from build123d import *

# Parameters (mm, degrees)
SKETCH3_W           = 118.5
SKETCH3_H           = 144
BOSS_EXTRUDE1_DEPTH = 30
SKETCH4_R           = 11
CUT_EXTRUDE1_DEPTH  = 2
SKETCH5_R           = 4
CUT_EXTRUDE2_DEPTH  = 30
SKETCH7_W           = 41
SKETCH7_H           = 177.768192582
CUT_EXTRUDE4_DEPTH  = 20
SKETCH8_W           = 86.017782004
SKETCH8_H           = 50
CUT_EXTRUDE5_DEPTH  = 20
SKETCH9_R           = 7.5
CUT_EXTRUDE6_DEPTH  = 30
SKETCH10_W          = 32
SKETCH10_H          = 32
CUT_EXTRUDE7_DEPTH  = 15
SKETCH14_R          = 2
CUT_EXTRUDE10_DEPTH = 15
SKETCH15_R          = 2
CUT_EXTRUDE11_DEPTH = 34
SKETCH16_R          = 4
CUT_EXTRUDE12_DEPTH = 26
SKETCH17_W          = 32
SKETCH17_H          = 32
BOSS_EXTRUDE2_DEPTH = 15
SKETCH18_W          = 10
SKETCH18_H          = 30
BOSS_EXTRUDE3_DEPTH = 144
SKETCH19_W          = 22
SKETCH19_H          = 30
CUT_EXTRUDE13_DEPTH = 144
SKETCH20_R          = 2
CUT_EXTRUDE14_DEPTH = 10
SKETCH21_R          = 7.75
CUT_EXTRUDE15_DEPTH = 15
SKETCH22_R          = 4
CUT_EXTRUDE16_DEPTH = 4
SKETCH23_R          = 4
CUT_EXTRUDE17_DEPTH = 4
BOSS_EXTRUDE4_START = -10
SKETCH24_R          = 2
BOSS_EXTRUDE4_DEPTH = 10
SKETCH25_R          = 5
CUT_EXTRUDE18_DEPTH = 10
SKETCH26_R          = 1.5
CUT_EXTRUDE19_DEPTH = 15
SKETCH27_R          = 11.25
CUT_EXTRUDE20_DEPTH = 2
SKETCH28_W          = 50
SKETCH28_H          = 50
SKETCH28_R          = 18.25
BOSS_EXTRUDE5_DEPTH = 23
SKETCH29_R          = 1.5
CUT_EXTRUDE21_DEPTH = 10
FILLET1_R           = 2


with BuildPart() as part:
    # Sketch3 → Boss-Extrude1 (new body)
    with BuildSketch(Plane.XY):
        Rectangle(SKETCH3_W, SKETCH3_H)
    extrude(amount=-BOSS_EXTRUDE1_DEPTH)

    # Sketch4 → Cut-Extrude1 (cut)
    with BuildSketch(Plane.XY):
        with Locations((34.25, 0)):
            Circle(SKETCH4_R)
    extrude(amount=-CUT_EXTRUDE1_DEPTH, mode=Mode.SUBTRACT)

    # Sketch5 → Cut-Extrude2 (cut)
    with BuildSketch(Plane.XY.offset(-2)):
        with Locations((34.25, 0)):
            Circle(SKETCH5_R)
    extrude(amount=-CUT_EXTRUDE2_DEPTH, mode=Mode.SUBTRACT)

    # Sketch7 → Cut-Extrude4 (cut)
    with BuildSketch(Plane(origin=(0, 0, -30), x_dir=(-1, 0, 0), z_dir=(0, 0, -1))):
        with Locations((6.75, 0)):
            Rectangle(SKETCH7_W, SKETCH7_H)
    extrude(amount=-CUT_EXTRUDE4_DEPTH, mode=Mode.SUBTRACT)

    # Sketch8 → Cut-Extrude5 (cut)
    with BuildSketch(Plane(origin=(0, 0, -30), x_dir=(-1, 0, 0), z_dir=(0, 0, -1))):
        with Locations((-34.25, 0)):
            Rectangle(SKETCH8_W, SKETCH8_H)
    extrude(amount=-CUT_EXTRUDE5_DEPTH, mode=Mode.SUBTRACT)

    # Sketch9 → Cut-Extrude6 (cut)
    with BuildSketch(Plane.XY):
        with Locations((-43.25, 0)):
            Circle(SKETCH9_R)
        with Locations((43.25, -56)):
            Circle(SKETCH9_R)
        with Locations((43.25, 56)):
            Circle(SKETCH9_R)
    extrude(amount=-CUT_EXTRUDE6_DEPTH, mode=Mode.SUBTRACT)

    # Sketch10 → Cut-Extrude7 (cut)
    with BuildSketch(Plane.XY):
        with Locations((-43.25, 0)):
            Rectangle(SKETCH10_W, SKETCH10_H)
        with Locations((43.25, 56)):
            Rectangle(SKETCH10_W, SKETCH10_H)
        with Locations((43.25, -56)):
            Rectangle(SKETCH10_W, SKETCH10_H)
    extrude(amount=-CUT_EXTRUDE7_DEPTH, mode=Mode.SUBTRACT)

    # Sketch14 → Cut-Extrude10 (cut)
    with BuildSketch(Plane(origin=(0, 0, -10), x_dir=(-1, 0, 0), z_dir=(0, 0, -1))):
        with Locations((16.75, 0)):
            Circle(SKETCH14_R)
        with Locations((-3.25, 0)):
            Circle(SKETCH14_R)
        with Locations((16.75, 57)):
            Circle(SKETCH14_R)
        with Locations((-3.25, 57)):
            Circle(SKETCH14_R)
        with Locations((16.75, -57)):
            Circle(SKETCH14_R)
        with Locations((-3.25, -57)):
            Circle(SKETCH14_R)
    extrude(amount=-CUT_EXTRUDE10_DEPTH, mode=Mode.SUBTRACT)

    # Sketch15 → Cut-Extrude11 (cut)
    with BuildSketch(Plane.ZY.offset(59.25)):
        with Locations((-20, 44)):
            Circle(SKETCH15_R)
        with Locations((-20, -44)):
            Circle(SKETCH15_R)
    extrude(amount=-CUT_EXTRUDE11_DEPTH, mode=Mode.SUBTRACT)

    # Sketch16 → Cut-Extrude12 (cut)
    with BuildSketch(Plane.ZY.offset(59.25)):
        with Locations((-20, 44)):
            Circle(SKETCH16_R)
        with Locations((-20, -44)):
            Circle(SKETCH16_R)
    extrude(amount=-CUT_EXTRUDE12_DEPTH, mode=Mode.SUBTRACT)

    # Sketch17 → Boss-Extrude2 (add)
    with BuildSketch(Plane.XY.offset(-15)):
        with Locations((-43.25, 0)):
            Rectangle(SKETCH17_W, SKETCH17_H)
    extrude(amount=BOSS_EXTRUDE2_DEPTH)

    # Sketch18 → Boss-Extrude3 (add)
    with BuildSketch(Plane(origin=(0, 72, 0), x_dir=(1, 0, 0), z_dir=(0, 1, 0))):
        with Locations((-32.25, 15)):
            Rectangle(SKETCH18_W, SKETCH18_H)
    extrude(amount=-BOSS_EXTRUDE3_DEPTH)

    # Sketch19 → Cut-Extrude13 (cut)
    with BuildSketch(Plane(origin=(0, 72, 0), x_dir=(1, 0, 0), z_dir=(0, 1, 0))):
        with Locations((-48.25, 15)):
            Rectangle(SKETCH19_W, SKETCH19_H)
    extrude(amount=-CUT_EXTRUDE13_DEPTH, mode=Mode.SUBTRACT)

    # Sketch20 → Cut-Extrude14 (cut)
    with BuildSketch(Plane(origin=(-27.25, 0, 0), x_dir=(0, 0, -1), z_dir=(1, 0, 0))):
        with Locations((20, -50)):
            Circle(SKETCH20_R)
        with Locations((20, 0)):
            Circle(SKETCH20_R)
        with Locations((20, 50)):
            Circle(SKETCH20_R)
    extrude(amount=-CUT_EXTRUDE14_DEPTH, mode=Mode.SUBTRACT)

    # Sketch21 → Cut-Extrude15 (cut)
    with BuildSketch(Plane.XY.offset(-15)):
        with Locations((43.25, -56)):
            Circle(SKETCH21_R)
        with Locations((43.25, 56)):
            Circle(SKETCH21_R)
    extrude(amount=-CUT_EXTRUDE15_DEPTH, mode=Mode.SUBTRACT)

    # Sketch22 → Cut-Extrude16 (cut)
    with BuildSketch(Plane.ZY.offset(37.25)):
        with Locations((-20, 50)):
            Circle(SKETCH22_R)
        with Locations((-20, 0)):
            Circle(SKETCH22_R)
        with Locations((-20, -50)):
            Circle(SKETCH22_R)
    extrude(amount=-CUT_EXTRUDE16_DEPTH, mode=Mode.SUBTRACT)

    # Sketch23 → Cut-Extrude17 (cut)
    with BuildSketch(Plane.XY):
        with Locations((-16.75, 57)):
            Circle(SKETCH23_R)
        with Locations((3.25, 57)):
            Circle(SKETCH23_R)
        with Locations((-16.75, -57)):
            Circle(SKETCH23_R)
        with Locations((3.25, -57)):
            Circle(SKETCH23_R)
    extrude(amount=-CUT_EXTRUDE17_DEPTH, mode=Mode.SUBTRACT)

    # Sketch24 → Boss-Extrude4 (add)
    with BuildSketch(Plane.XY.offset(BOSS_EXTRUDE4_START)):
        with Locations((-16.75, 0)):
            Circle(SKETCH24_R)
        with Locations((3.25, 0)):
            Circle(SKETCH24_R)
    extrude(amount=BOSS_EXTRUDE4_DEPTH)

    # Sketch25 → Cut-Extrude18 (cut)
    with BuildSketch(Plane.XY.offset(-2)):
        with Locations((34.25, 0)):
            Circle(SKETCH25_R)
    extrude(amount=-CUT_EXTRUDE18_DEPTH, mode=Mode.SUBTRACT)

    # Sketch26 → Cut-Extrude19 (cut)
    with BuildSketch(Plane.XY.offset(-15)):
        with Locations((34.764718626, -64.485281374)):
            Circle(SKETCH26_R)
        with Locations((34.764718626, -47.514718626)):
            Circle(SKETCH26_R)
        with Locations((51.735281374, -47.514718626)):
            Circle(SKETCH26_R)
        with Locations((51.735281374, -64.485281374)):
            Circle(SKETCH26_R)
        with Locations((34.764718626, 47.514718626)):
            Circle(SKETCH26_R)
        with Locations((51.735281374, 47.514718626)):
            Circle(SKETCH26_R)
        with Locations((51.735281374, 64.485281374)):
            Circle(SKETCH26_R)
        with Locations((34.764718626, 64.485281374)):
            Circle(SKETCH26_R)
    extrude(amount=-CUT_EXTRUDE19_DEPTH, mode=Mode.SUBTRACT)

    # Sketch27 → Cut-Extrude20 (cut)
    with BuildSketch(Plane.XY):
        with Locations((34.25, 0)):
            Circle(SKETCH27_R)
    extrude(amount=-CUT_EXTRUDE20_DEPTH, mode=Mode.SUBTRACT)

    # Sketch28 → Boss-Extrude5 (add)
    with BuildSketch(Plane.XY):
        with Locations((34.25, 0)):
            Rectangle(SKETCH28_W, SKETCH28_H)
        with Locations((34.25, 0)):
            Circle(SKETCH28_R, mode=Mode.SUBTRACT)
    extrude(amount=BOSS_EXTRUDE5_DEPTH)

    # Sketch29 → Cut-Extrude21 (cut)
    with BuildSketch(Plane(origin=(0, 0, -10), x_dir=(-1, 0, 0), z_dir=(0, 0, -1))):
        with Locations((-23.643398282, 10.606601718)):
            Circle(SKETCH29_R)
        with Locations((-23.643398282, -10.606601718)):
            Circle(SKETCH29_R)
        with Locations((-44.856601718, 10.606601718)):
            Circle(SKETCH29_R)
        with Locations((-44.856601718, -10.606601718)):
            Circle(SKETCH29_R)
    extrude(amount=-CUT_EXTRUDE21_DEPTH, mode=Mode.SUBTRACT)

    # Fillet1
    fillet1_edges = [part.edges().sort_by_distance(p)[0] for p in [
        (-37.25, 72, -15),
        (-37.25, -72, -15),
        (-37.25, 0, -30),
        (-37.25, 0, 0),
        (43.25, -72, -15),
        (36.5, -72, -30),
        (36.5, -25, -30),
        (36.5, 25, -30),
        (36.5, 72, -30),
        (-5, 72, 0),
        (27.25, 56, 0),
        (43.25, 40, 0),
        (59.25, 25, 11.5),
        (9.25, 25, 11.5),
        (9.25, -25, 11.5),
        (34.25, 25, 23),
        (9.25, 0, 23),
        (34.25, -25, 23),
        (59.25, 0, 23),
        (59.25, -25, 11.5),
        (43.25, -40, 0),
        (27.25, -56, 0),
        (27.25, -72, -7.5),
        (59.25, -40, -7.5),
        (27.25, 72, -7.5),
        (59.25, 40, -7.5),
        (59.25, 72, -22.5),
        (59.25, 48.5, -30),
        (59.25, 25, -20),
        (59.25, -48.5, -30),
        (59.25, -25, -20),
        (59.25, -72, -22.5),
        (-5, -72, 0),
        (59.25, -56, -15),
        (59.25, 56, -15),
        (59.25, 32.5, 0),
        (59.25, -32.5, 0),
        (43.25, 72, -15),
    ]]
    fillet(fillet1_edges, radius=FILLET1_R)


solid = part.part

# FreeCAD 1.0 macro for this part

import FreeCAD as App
import Part
import Sketcher


def edges_at(feature, points):
    """Names of the edges that pass closest to the given points."""
    edges = feature.Shape.Edges
    near = lambda p: min(range(len(edges)), key=lambda i: edges[i].distToShape(Part.Vertex(*p))[0])
    return sorted({f"Edge{near(p) + 1}" for p in points})


def add_polygon(sketch, points):
    """Adds a closed chain of lines whose ends are joined by coincident constraints."""
    first, n = sketch.GeometryCount, len(points)
    for a, b in zip(points, points[1:] + points[:1]):
        sketch.addGeometry(Part.LineSegment(App.Vector(*a, 0), App.Vector(*b, 0)), False)
    for i in range(n):
        sketch.addConstraint(Sketcher.Constraint("Coincident", first + i, 2, first + (i + 1) % n, 1))

doc = App.newDocument("Part")
params = doc.addObject("Spreadsheet::Sheet", "Params")
for row, (alias, value) in enumerate([
    ("sketch1_height", "144 mm"),
    ("sketch1_width", "118.5 mm"),
    ("pad1_length", "30 mm"),
    ("sketch2_diameter", "22 mm"),
    ("pocket1_length", "2 mm"),
    ("sketch3_diameter", "8 mm"),
    ("pocket2_length", "30 mm"),
    ("sketch4_width", "41 mm"),
    ("pocket3_length", "20 mm"),
    ("sketch5_height", "50 mm"),
    ("pocket4_length", "20 mm"),
    ("sketch6_diameter", "15 mm"),
    ("pocket5_length", "30 mm"),
    ("sketch7_width", "32 mm"),
    ("pocket6_length", "15 mm"),
    ("sketch8_diameter", "4 mm"),
    ("pocket7_length", "15 mm"),
    ("sketch9_diameter", "4 mm"),
    ("pocket8_length", "34 mm"),
    ("sketch10_diameter", "8 mm"),
    ("pocket9_length", "26 mm"),
    ("sketch11_width", "32 mm"),
    ("pad2_length", "15 mm"),
    ("sketch12_width", "10 mm"),
    ("sketch12_height", "30 mm"),
    ("pad3_length", "144 mm"),
    ("sketch13_width", "22 mm"),
    ("sketch13_height", "30 mm"),
    ("pocket10_length", "144 mm"),
    ("sketch14_diameter", "4 mm"),
    ("pocket11_length", "10 mm"),
    ("sketch15_diameter", "15.5 mm"),
    ("pocket12_length", "15 mm"),
    ("sketch16_diameter", "8 mm"),
    ("pocket13_length", "4 mm"),
    ("sketch17_diameter", "8 mm"),
    ("pocket14_length", "4 mm"),
    ("sketch18_diameter", "4 mm"),
    ("pad4_length", "10 mm"),
    ("sketch19_diameter", "10 mm"),
    ("pocket15_length", "10 mm"),
    ("sketch20_diameter", "3 mm"),
    ("pocket16_length", "15 mm"),
    ("sketch21_diameter", "22.5 mm"),
    ("pocket17_length", "2 mm"),
    ("sketch22_diameter", "36.5 mm"),
    ("sketch22_width", "50 mm"),
    ("pad5_length", "23 mm"),
    ("sketch23_diameter", "3 mm"),
    ("pocket18_length", "10 mm"),
    ("fillet_radius", "2 mm"),
], start=1):
    params.set(f"A{row}", alias)
    params.set(f"B{row}", "=" + value)
    params.setAlias(f"B{row}", alias)

body = doc.addObject("PartDesign::Body", "Body")

# Sketch on XY plane
sketch1 = doc.addObject("Sketcher::SketchObject", "Sketch")
body.addObject(sketch1)
sketch1.AttachmentSupport = (doc.XY_Plane, [""])
sketch1.MapMode = "FlatFace"
add_polygon(sketch1, [(-59, 72), (-59, -72), (59, -72), (59, 72)])  # lines 0-3
sketch1.addConstraint([
    Sketcher.Constraint("Vertical", 0),
    Sketcher.Constraint("Horizontal", 1),
    Sketcher.Constraint("Vertical", 2),
    Sketcher.Constraint("Horizontal", 3),
    Sketcher.Constraint("Symmetric", 0, 2, 2, 2, -1, 1),
    Sketcher.Constraint("DistanceY", 0, 2, 0, 1, 144.0),
    Sketcher.Constraint("DistanceX", 1, 1, 1, 2, 118.5),
])
sketch1.setExpression("Constraints[9]", "Params.sketch1_height")
sketch1.setExpression("Constraints[10]", "Params.sketch1_width")
pad1 = doc.addObject("PartDesign::Pad", "Pad")
body.addObject(pad1)
pad1.Profile = sketch1
pad1.setExpression("Length", "Params.pad1_length")
pad1.Reversed = True

# Sketch on XY plane
sketch2 = doc.addObject("Sketcher::SketchObject", "Sketch001")
body.addObject(sketch2)
sketch2.AttachmentSupport = (doc.XY_Plane, [""])
sketch2.MapMode = "FlatFace"
sketch2.addGeometry(Part.Circle(App.Vector(34, 0, 0), App.Vector(0, 0, 1), 11), False)
sketch2.addConstraint([
    Sketcher.Constraint("PointOnObject", 0, 3, -1),
    Sketcher.Constraint("Diameter", 0, 22.0),
    Sketcher.Constraint("DistanceX", -1, 1, 0, 3, 34.25),
])
sketch2.setExpression("Constraints[1]", "Params.sketch2_diameter")
pocket1 = doc.addObject("PartDesign::Pocket", "Pocket")
body.addObject(pocket1)
pocket1.Profile = sketch2
pocket1.setExpression("Length", "Params.pocket1_length")

# Sketch on XY plane
sketch3 = doc.addObject("Sketcher::SketchObject", "Sketch002")
body.addObject(sketch3)
sketch3.AttachmentSupport = (doc.XY_Plane, [""])
sketch3.MapMode = "FlatFace"
sketch3.AttachmentOffset = App.Placement(App.Vector(0, 0, -2), App.Rotation())
sketch3.addGeometry(Part.Circle(App.Vector(34.2, 0, 0), App.Vector(0, 0, 1), 4), False)
sketch3.addConstraint([
    Sketcher.Constraint("PointOnObject", 0, 3, -1),
    Sketcher.Constraint("Diameter", 0, 8.0),
    Sketcher.Constraint("DistanceX", -1, 1, 0, 3, 34.25),
])
sketch3.setExpression("Constraints[1]", "Params.sketch3_diameter")
pocket2 = doc.addObject("PartDesign::Pocket", "Pocket001")
body.addObject(pocket2)
pocket2.Profile = sketch3
pocket2.setExpression("Length", "Params.pocket2_length")

# Sketch on XY plane
sketch4 = doc.addObject("Sketcher::SketchObject", "Sketch003")
body.addObject(sketch4)
sketch4.AttachmentSupport = (doc.XY_Plane, [""])
sketch4.MapMode = "FlatFace"
sketch4.AttachmentOffset = App.Placement(App.Vector(0, 0, -30), App.Rotation())
add_polygon(sketch4, [(14, 89), (14, -89), (-27, -89), (-27, 89)])  # lines 0-3
sketch4.addConstraint([
    Sketcher.Constraint("Vertical", 0),
    Sketcher.Constraint("Horizontal", 1),
    Sketcher.Constraint("Vertical", 2),
    Sketcher.Constraint("Horizontal", 3),
    Sketcher.Constraint("DistanceX", 1, 2, 1, 1, 41.0),
    Sketcher.Constraint("DistanceX", -1, 1, 0, 2, 13.75),
    Sketcher.Constraint("DistanceY", 0, 2, 0, 1, 177.768193),
    Sketcher.Constraint("DistanceY", 0, 2, -1, 1, 88.884096),
])
sketch4.setExpression("Constraints[8]", "Params.sketch4_width")
pocket3 = doc.addObject("PartDesign::Pocket", "Pocket002")
body.addObject(pocket3)
pocket3.Profile = sketch4
pocket3.setExpression("Length", "Params.pocket3_length")
pocket3.Reversed = True

# Sketch on XY plane
sketch5 = doc.addObject("Sketcher::SketchObject", "Sketch004")
body.addObject(sketch5)
sketch5.AttachmentSupport = (doc.XY_Plane, [""])
sketch5.MapMode = "FlatFace"
sketch5.AttachmentOffset = App.Placement(App.Vector(0, 0, -30), App.Rotation())
add_polygon(sketch5, [(77, 25), (77, -25), (-9, -25), (-9, 25)])  # lines 0-3
sketch5.addConstraint([
    Sketcher.Constraint("Vertical", 0),
    Sketcher.Constraint("Horizontal", 1),
    Sketcher.Constraint("Vertical", 2),
    Sketcher.Constraint("Horizontal", 3),
    Sketcher.Constraint("DistanceY", 0, 2, 0, 1, 50.0),
    Sketcher.Constraint("DistanceY", 0, 2, -1, 1, 25.0),
    Sketcher.Constraint("DistanceX", 1, 2, 1, 1, 86.017782),
    Sketcher.Constraint("DistanceX", -1, 1, 0, 2, 77.258891),
])
sketch5.setExpression("Constraints[8]", "Params.sketch5_height")
pocket4 = doc.addObject("PartDesign::Pocket", "Pocket003")
body.addObject(pocket4)
pocket4.Profile = sketch5
pocket4.setExpression("Length", "Params.pocket4_length")
pocket4.Reversed = True

# Sketch on XY plane
sketch6 = doc.addObject("Sketcher::SketchObject", "Sketch005")
body.addObject(sketch6)
sketch6.AttachmentSupport = (doc.XY_Plane, [""])
sketch6.MapMode = "FlatFace"
sketch6.addGeometry([
    Part.Circle(App.Vector(-43, 0, 0), App.Vector(0, 0, 1), 8),
    Part.Circle(App.Vector(43, -56, 0), App.Vector(0, 0, 1), 8),
    Part.Circle(App.Vector(43, 56, 0), App.Vector(0, 0, 1), 8),
], False)
sketch6.addConstraint([
    Sketcher.Constraint("Equal", 0, 1),
    Sketcher.Constraint("Equal", 1, 2),
    Sketcher.Constraint("Symmetric", 1, 3, 2, 3, -1),
    Sketcher.Constraint("PointOnObject", 0, 3, -1),
    Sketcher.Constraint("Diameter", 0, 15.0),
    Sketcher.Constraint("DistanceY", 1, 3, -1, 1, 56.0),
    Sketcher.Constraint("DistanceX", 0, 3, 1, 3, 86.5),
    Sketcher.Constraint("DistanceX", 0, 3, -1, 1, 43.25),
])
sketch6.setExpression("Constraints[4]", "Params.sketch6_diameter")
pocket5 = doc.addObject("PartDesign::Pocket", "Pocket004")
body.addObject(pocket5)
pocket5.Profile = sketch6
pocket5.setExpression("Length", "Params.pocket5_length")

# Sketch on XY plane
sketch7 = doc.addObject("Sketcher::SketchObject", "Sketch006")
body.addObject(sketch7)
sketch7.AttachmentSupport = (doc.XY_Plane, [""])
sketch7.MapMode = "FlatFace"
add_polygon(sketch7, [(-59, 16), (-59, -16), (-27, -16), (-27, 16)])  # lines 0-3
add_polygon(sketch7, [(27, 72), (27, 40), (59, 40), (59, 72)])  # lines 4-7
add_polygon(sketch7, [(27, -40), (27, -72), (59, -72), (59, -40)])  # lines 8-11
sketch7.addConstraint([
    Sketcher.Constraint("Vertical", 0),
    Sketcher.Constraint("Horizontal", 1),
    Sketcher.Constraint("Vertical", 2),
    Sketcher.Constraint("Horizontal", 3),
    Sketcher.Constraint("Vertical", 4),
    Sketcher.Constraint("Horizontal", 5),
    Sketcher.Constraint("Vertical", 6),
    Sketcher.Constraint("Horizontal", 7),
    Sketcher.Constraint("Vertical", 8),
    Sketcher.Constraint("Horizontal", 9),
    Sketcher.Constraint("Vertical", 10),
    Sketcher.Constraint("Horizontal", 11),
    Sketcher.Constraint("Symmetric", 7, 2, 8, 2, -1),
    Sketcher.Constraint("Symmetric", 5, 2, 10, 2, -1),
    Sketcher.Constraint("Equal", 3, 5),
    Sketcher.Constraint("Equal", 11, 0),
    Sketcher.Constraint("Equal", 2, 4),
    Sketcher.Constraint("DistanceX", 1, 1, 1, 2, 32.0),
    Sketcher.Constraint("DistanceY", 0, 2, -1, 1, 16.0),
    Sketcher.Constraint("DistanceY", -1, 1, 4, 2, 40.0),
    Sketcher.Constraint("DistanceX", 2, 2, 4, 2, 54.5),
    Sketcher.Constraint("DistanceX", 0, 2, -1, 1, 59.25),
])
sketch7.setExpression("Constraints[29]", "Params.sketch7_width")
pocket6 = doc.addObject("PartDesign::Pocket", "Pocket005")
body.addObject(pocket6)
pocket6.Profile = sketch7
pocket6.setExpression("Length", "Params.pocket6_length")

# Sketch on XY plane
sketch8 = doc.addObject("Sketcher::SketchObject", "Sketch007")
body.addObject(sketch8)
sketch8.AttachmentSupport = (doc.XY_Plane, [""])
sketch8.MapMode = "FlatFace"
sketch8.AttachmentOffset = App.Placement(App.Vector(0, 0, -10), App.Rotation())
sketch8.addGeometry([
    Part.Circle(App.Vector(-16.8, 0, 0), App.Vector(0, 0, 1), 2),  # 0
    Part.Circle(App.Vector(3.2, 0, 0), App.Vector(0, 0, 1), 2),  # 1
    Part.Circle(App.Vector(-16.8, 57, 0), App.Vector(0, 0, 1), 2),  # 2
    Part.Circle(App.Vector(3.2, 57, 0), App.Vector(0, 0, 1), 2),  # 3
    Part.Circle(App.Vector(-16.8, -57, 0), App.Vector(0, 0, 1), 2),  # 4
    Part.Circle(App.Vector(3.2, -57, 0), App.Vector(0, 0, 1), 2),  # 5
], False)
sketch8.addConstraint([
    Sketcher.Constraint("Equal", 0, 1),
    Sketcher.Constraint("Equal", 1, 2),
    Sketcher.Constraint("Equal", 2, 3),
    Sketcher.Constraint("Equal", 3, 4),
    Sketcher.Constraint("Equal", 4, 5),
    Sketcher.Constraint("Symmetric", 2, 3, 4, 3, -1),
    Sketcher.Constraint("Symmetric", 3, 3, 5, 3, -1),
    Sketcher.Constraint("PointOnObject", 0, 3, -1),
    Sketcher.Constraint("PointOnObject", 1, 3, -1),
    Sketcher.Constraint("Horizontal", 2, 3, 3, 3),
    Sketcher.Constraint("Vertical", 0, 3, 2, 3),
    Sketcher.Constraint("Vertical", 1, 3, 3, 3),
    Sketcher.Constraint("Diameter", 0, 4.0),
    Sketcher.Constraint("DistanceY", -1, 1, 2, 3, 57.0),
    Sketcher.Constraint("DistanceX", 0, 3, 1, 3, 20.0),
    Sketcher.Constraint("DistanceX", 0, 3, -1, 1, 16.75),
])
sketch8.setExpression("Constraints[12]", "Params.sketch8_diameter")
pocket7 = doc.addObject("PartDesign::Pocket", "Pocket006")
body.addObject(pocket7)
pocket7.Profile = sketch8
pocket7.setExpression("Length", "Params.pocket7_length")
pocket7.Reversed = True

# Sketch on YZ plane
sketch9 = doc.addObject("Sketcher::SketchObject", "Sketch008")
body.addObject(sketch9)
sketch9.AttachmentSupport = (doc.YZ_Plane, [""])
sketch9.MapMode = "FlatFace"
sketch9.AttachmentOffset = App.Placement(App.Vector(0, 0, -59.25), App.Rotation())
sketch9.addGeometry([
    Part.Circle(App.Vector(44, -20, 0), App.Vector(0, 0, 1), 2),
    Part.Circle(App.Vector(-44, -20, 0), App.Vector(0, 0, 1), 2),
], False)
sketch9.addConstraint([
    Sketcher.Constraint("Equal", 0, 1),
    Sketcher.Constraint("Symmetric", 0, 3, 1, 3, -2),
    Sketcher.Constraint("Diameter", 0, 4.0),
    Sketcher.Constraint("DistanceX", -1, 1, 0, 3, 44.0),
    Sketcher.Constraint("DistanceY", 0, 3, -1, 1, 20.0),
])
sketch9.setExpression("Constraints[2]", "Params.sketch9_diameter")
pocket8 = doc.addObject("PartDesign::Pocket", "Pocket007")
body.addObject(pocket8)
pocket8.Profile = sketch9
pocket8.setExpression("Length", "Params.pocket8_length")
pocket8.Reversed = True

# Sketch on YZ plane
sketch10 = doc.addObject("Sketcher::SketchObject", "Sketch009")
body.addObject(sketch10)
sketch10.AttachmentSupport = (doc.YZ_Plane, [""])
sketch10.MapMode = "FlatFace"
sketch10.AttachmentOffset = App.Placement(App.Vector(0, 0, -59.25), App.Rotation())
sketch10.addGeometry([
    Part.Circle(App.Vector(44, -20, 0), App.Vector(0, 0, 1), 4),
    Part.Circle(App.Vector(-44, -20, 0), App.Vector(0, 0, 1), 4),
], False)
sketch10.addConstraint([
    Sketcher.Constraint("Equal", 0, 1),
    Sketcher.Constraint("Symmetric", 0, 3, 1, 3, -2),
    Sketcher.Constraint("Diameter", 0, 8.0),
    Sketcher.Constraint("DistanceX", -1, 1, 0, 3, 44.0),
    Sketcher.Constraint("DistanceY", 0, 3, -1, 1, 20.0),
])
sketch10.setExpression("Constraints[2]", "Params.sketch10_diameter")
pocket9 = doc.addObject("PartDesign::Pocket", "Pocket008")
body.addObject(pocket9)
pocket9.Profile = sketch10
pocket9.setExpression("Length", "Params.pocket9_length")
pocket9.Reversed = True

# Sketch on XY plane
sketch11 = doc.addObject("Sketcher::SketchObject", "Sketch010")
body.addObject(sketch11)
sketch11.AttachmentSupport = (doc.XY_Plane, [""])
sketch11.MapMode = "FlatFace"
sketch11.AttachmentOffset = App.Placement(App.Vector(0, 0, -15), App.Rotation())
add_polygon(sketch11, [(-59, 16), (-59, -16), (-27, -16), (-27, 16)])  # lines 0-3
sketch11.addConstraint([
    Sketcher.Constraint("Vertical", 0),
    Sketcher.Constraint("Horizontal", 1),
    Sketcher.Constraint("Vertical", 2),
    Sketcher.Constraint("Horizontal", 3),
    Sketcher.Constraint("Equal", 3, 0),
    Sketcher.Constraint("DistanceX", 1, 1, 1, 2, 32.0),
    Sketcher.Constraint("DistanceY", 0, 2, -1, 1, 16.0),
    Sketcher.Constraint("DistanceX", 0, 2, -1, 1, 59.25),
])
sketch11.setExpression("Constraints[9]", "Params.sketch11_width")
pad2 = doc.addObject("PartDesign::Pad", "Pad001")
body.addObject(pad2)
pad2.Profile = sketch11
pad2.setExpression("Length", "Params.pad2_length")

# Sketch on XZ plane
sketch12 = doc.addObject("Sketcher::SketchObject", "Sketch011")
body.addObject(sketch12)
sketch12.AttachmentSupport = (doc.XZ_Plane, [""])
sketch12.MapMode = "FlatFace"
sketch12.AttachmentOffset = App.Placement(App.Vector(0, 0, -72), App.Rotation())
add_polygon(sketch12, [(-37, -30), (-37, 0), (-27, 0), (-27, -30)])  # lines 0-3
sketch12.addConstraint([
    Sketcher.Constraint("Vertical", 0),
    Sketcher.Constraint("Horizontal", 1),
    Sketcher.Constraint("Vertical", 2),
    Sketcher.Constraint("Horizontal", 3),
    Sketcher.Constraint("PointOnObject", 0, 2, -1),
    Sketcher.Constraint("DistanceX", 1, 1, 1, 2, 10.0),
    Sketcher.Constraint("DistanceY", 0, 1, 0, 2, 30.0),
    Sketcher.Constraint("DistanceX", 0, 2, -1, 1, 37.25),
])
sketch12.setExpression("Constraints[9]", "Params.sketch12_width")
sketch12.setExpression("Constraints[10]", "Params.sketch12_height")
pad3 = doc.addObject("PartDesign::Pad", "Pad002")
body.addObject(pad3)
pad3.Profile = sketch12
pad3.setExpression("Length", "Params.pad3_length")

# Sketch on XZ plane
sketch13 = doc.addObject("Sketcher::SketchObject", "Sketch012")
body.addObject(sketch13)
sketch13.AttachmentSupport = (doc.XZ_Plane, [""])
sketch13.MapMode = "FlatFace"
sketch13.AttachmentOffset = App.Placement(App.Vector(0, 0, -72), App.Rotation())
add_polygon(sketch13, [(-59, -30), (-59, 0), (-37, 0), (-37, -30)])  # lines 0-3
sketch13.addConstraint([
    Sketcher.Constraint("Vertical", 0),
    Sketcher.Constraint("Horizontal", 1),
    Sketcher.Constraint("Vertical", 2),
    Sketcher.Constraint("Horizontal", 3),
    Sketcher.Constraint("PointOnObject", 0, 2, -1),
    Sketcher.Constraint("DistanceX", 1, 1, 1, 2, 22.0),
    Sketcher.Constraint("DistanceY", 0, 1, 0, 2, 30.0),
    Sketcher.Constraint("DistanceX", 0, 2, -1, 1, 59.25),
])
sketch13.setExpression("Constraints[9]", "Params.sketch13_width")
sketch13.setExpression("Constraints[10]", "Params.sketch13_height")
pocket10 = doc.addObject("PartDesign::Pocket", "Pocket009")
body.addObject(pocket10)
pocket10.Profile = sketch13
pocket10.setExpression("Length", "Params.pocket10_length")
pocket10.Reversed = True

# Sketch on YZ plane
sketch14 = doc.addObject("Sketcher::SketchObject", "Sketch013")
body.addObject(sketch14)
sketch14.AttachmentSupport = (doc.YZ_Plane, [""])
sketch14.MapMode = "FlatFace"
sketch14.AttachmentOffset = App.Placement(App.Vector(0, 0, -27.25), App.Rotation())
sketch14.addGeometry([
    Part.Circle(App.Vector(-50, -20, 0), App.Vector(0, 0, 1), 2),
    Part.Circle(App.Vector(0, -20, 0), App.Vector(0, 0, 1), 2),
    Part.Circle(App.Vector(50, -20, 0), App.Vector(0, 0, 1), 2),
], False)
sketch14.addConstraint([
    Sketcher.Constraint("Equal", 0, 1),
    Sketcher.Constraint("Equal", 1, 2),
    Sketcher.Constraint("Symmetric", 0, 3, 2, 3, -2),
    Sketcher.Constraint("PointOnObject", 1, 3, -2),
    Sketcher.Constraint("Horizontal", 0, 3, 1, 3),
    Sketcher.Constraint("Diameter", 0, 4.0),
    Sketcher.Constraint("DistanceX", 0, 3, -1, 1, 50.0),
    Sketcher.Constraint("DistanceY", 0, 3, -1, 1, 20.0),
])
sketch14.setExpression("Constraints[5]", "Params.sketch14_diameter")
pocket11 = doc.addObject("PartDesign::Pocket", "Pocket010")
body.addObject(pocket11)
pocket11.Profile = sketch14
pocket11.setExpression("Length", "Params.pocket11_length")

# Sketch on XY plane
sketch15 = doc.addObject("Sketcher::SketchObject", "Sketch014")
body.addObject(sketch15)
sketch15.AttachmentSupport = (doc.XY_Plane, [""])
sketch15.MapMode = "FlatFace"
sketch15.AttachmentOffset = App.Placement(App.Vector(0, 0, -15), App.Rotation())
sketch15.addGeometry([
    Part.Circle(App.Vector(43, -56, 0), App.Vector(0, 0, 1), 8),
    Part.Circle(App.Vector(43, 56, 0), App.Vector(0, 0, 1), 8),
], False)
sketch15.addConstraint([
    Sketcher.Constraint("Equal", 0, 1),
    Sketcher.Constraint("Symmetric", 0, 3, 1, 3, -1),
    Sketcher.Constraint("Diameter", 0, 15.5),
    Sketcher.Constraint("DistanceY", 0, 3, -1, 1, 56.0),
    Sketcher.Constraint("DistanceX", -1, 1, 0, 3, 43.25),
])
sketch15.setExpression("Constraints[2]", "Params.sketch15_diameter")
pocket12 = doc.addObject("PartDesign::Pocket", "Pocket011")
body.addObject(pocket12)
pocket12.Profile = sketch15
pocket12.setExpression("Length", "Params.pocket12_length")

# Sketch on YZ plane
sketch16 = doc.addObject("Sketcher::SketchObject", "Sketch015")
body.addObject(sketch16)
sketch16.AttachmentSupport = (doc.YZ_Plane, [""])
sketch16.MapMode = "FlatFace"
sketch16.AttachmentOffset = App.Placement(App.Vector(0, 0, -37.25), App.Rotation())
sketch16.addGeometry([
    Part.Circle(App.Vector(50, -20, 0), App.Vector(0, 0, 1), 4),
    Part.Circle(App.Vector(0, -20, 0), App.Vector(0, 0, 1), 4),
    Part.Circle(App.Vector(-50, -20, 0), App.Vector(0, 0, 1), 4),
], False)
sketch16.addConstraint([
    Sketcher.Constraint("Equal", 0, 1),
    Sketcher.Constraint("Equal", 1, 2),
    Sketcher.Constraint("Symmetric", 0, 3, 2, 3, -2),
    Sketcher.Constraint("PointOnObject", 1, 3, -2),
    Sketcher.Constraint("Horizontal", 0, 3, 1, 3),
    Sketcher.Constraint("Diameter", 0, 8.0),
    Sketcher.Constraint("DistanceX", -1, 1, 0, 3, 50.0),
    Sketcher.Constraint("DistanceY", 0, 3, -1, 1, 20.0),
])
sketch16.setExpression("Constraints[5]", "Params.sketch16_diameter")
pocket13 = doc.addObject("PartDesign::Pocket", "Pocket012")
body.addObject(pocket13)
pocket13.Profile = sketch16
pocket13.setExpression("Length", "Params.pocket13_length")
pocket13.Reversed = True

# Sketch on XY plane
sketch17 = doc.addObject("Sketcher::SketchObject", "Sketch016")
body.addObject(sketch17)
sketch17.AttachmentSupport = (doc.XY_Plane, [""])
sketch17.MapMode = "FlatFace"
sketch17.addGeometry([
    Part.Circle(App.Vector(-16.8, 57, 0), App.Vector(0, 0, 1), 4),
    Part.Circle(App.Vector(3.2, 57, 0), App.Vector(0, 0, 1), 4),
    Part.Circle(App.Vector(-16.8, -57, 0), App.Vector(0, 0, 1), 4),
    Part.Circle(App.Vector(3.2, -57, 0), App.Vector(0, 0, 1), 4),
], False)
sketch17.addConstraint([
    Sketcher.Constraint("Equal", 0, 1),
    Sketcher.Constraint("Equal", 1, 2),
    Sketcher.Constraint("Equal", 2, 3),
    Sketcher.Constraint("Symmetric", 0, 3, 2, 3, -1),
    Sketcher.Constraint("Symmetric", 1, 3, 3, 3, -1),
    Sketcher.Constraint("Horizontal", 0, 3, 1, 3),
    Sketcher.Constraint("Diameter", 0, 8.0),
    Sketcher.Constraint("DistanceY", -1, 1, 0, 3, 57.0),
    Sketcher.Constraint("DistanceX", 0, 3, 1, 3, 20.0),
    Sketcher.Constraint("DistanceX", 0, 3, -1, 1, 16.75),
])
sketch17.setExpression("Constraints[6]", "Params.sketch17_diameter")
pocket14 = doc.addObject("PartDesign::Pocket", "Pocket013")
body.addObject(pocket14)
pocket14.Profile = sketch17
pocket14.setExpression("Length", "Params.pocket14_length")

# Sketch on XY plane
sketch18 = doc.addObject("Sketcher::SketchObject", "Sketch017")
body.addObject(sketch18)
sketch18.AttachmentSupport = (doc.XY_Plane, [""])
sketch18.MapMode = "FlatFace"
sketch18.AttachmentOffset = App.Placement(App.Vector(0, 0, -10), App.Rotation())
sketch18.addGeometry([
    Part.Circle(App.Vector(-16.8, 0, 0), App.Vector(0, 0, 1), 2),
    Part.Circle(App.Vector(3.2, 0, 0), App.Vector(0, 0, 1), 2),
], False)
sketch18.addConstraint([
    Sketcher.Constraint("Equal", 0, 1),
    Sketcher.Constraint("PointOnObject", 0, 3, -1),
    Sketcher.Constraint("PointOnObject", 1, 3, -1),
    Sketcher.Constraint("Diameter", 0, 4.0),
    Sketcher.Constraint("DistanceX", 0, 3, 1, 3, 20.0),
    Sketcher.Constraint("DistanceX", 0, 3, -1, 1, 16.75),
])
sketch18.setExpression("Constraints[3]", "Params.sketch18_diameter")
pad4 = doc.addObject("PartDesign::Pad", "Pad003")
body.addObject(pad4)
pad4.Profile = sketch18
pad4.setExpression("Length", "Params.pad4_length")

# Sketch on XY plane
sketch19 = doc.addObject("Sketcher::SketchObject", "Sketch018")
body.addObject(sketch19)
sketch19.AttachmentSupport = (doc.XY_Plane, [""])
sketch19.MapMode = "FlatFace"
sketch19.AttachmentOffset = App.Placement(App.Vector(0, 0, -2), App.Rotation())
sketch19.addGeometry(Part.Circle(App.Vector(34, 0, 0), App.Vector(0, 0, 1), 5), False)
sketch19.addConstraint([
    Sketcher.Constraint("PointOnObject", 0, 3, -1),
    Sketcher.Constraint("Diameter", 0, 10.0),
    Sketcher.Constraint("DistanceX", -1, 1, 0, 3, 34.25),
])
sketch19.setExpression("Constraints[1]", "Params.sketch19_diameter")
pocket15 = doc.addObject("PartDesign::Pocket", "Pocket014")
body.addObject(pocket15)
pocket15.Profile = sketch19
pocket15.setExpression("Length", "Params.pocket15_length")

# Sketch on XY plane
sketch20 = doc.addObject("Sketcher::SketchObject", "Sketch019")
body.addObject(sketch20)
sketch20.AttachmentSupport = (doc.XY_Plane, [""])
sketch20.MapMode = "FlatFace"
sketch20.AttachmentOffset = App.Placement(App.Vector(0, 0, -15), App.Rotation())
sketch20.addGeometry([
    Part.Circle(App.Vector(34.8, -64.5, 0), App.Vector(0, 0, 1), 1.5),  # 0
    Part.Circle(App.Vector(34.8, -47.5, 0), App.Vector(0, 0, 1), 1.5),  # 1
    Part.Circle(App.Vector(51.7, -47.5, 0), App.Vector(0, 0, 1), 1.5),  # 2
    Part.Circle(App.Vector(51.7, -64.5, 0), App.Vector(0, 0, 1), 1.5),  # 3
    Part.Circle(App.Vector(34.8, 47.5, 0), App.Vector(0, 0, 1), 1.5),  # 4
    Part.Circle(App.Vector(51.7, 47.5, 0), App.Vector(0, 0, 1), 1.5),  # 5
    Part.Circle(App.Vector(51.7, 64.5, 0), App.Vector(0, 0, 1), 1.5),  # 6
    Part.Circle(App.Vector(34.8, 64.5, 0), App.Vector(0, 0, 1), 1.5),  # 7
], False)
sketch20.addConstraint([
    Sketcher.Constraint("Equal", 0, 1),
    Sketcher.Constraint("Equal", 1, 2),
    Sketcher.Constraint("Equal", 2, 3),
    Sketcher.Constraint("Equal", 3, 4),
    Sketcher.Constraint("Equal", 4, 5),
    Sketcher.Constraint("Equal", 5, 6),
    Sketcher.Constraint("Equal", 6, 7),
    Sketcher.Constraint("Symmetric", 1, 3, 4, 3, -1),
    Sketcher.Constraint("Symmetric", 2, 3, 5, 3, -1),
    Sketcher.Constraint("Symmetric", 3, 3, 6, 3, -1),
    Sketcher.Constraint("Symmetric", 0, 3, 7, 3, -1),
    Sketcher.Constraint("Horizontal", 1, 3, 2, 3),
    Sketcher.Constraint("Horizontal", 0, 3, 3, 3),
    Sketcher.Constraint("Vertical", 0, 3, 1, 3),
    Sketcher.Constraint("Vertical", 2, 3, 3, 3),
    Sketcher.Constraint("Diameter", 0, 3.0),
    Sketcher.Constraint("DistanceY", 0, 3, 4, 3, 112.0),
    Sketcher.Constraint("DistanceX", -1, 1, 0, 3, 34.764719),
    Sketcher.Constraint("DistanceY", 0, 3, -1, 1, 64.485281),
    Sketcher.Constraint("DistanceX", -1, 1, 2, 3, 51.735281),
])
sketch20.setExpression("Constraints[15]", "Params.sketch20_diameter")
pocket16 = doc.addObject("PartDesign::Pocket", "Pocket015")
body.addObject(pocket16)
pocket16.Profile = sketch20
pocket16.setExpression("Length", "Params.pocket16_length")

# Sketch on XY plane
sketch21 = doc.addObject("Sketcher::SketchObject", "Sketch020")
body.addObject(sketch21)
sketch21.AttachmentSupport = (doc.XY_Plane, [""])
sketch21.MapMode = "FlatFace"
sketch21.addGeometry(Part.Circle(App.Vector(34, 0, 0), App.Vector(0, 0, 1), 11), False)
sketch21.addConstraint([
    Sketcher.Constraint("PointOnObject", 0, 3, -1),
    Sketcher.Constraint("Diameter", 0, 22.5),
    Sketcher.Constraint("DistanceX", -1, 1, 0, 3, 34.25),
])
sketch21.setExpression("Constraints[1]", "Params.sketch21_diameter")
pocket17 = doc.addObject("PartDesign::Pocket", "Pocket016")
body.addObject(pocket17)
pocket17.Profile = sketch21
pocket17.setExpression("Length", "Params.pocket17_length")

# Sketch on XY plane
sketch22 = doc.addObject("Sketcher::SketchObject", "Sketch021")
body.addObject(sketch22)
sketch22.AttachmentSupport = (doc.XY_Plane, [""])
sketch22.MapMode = "FlatFace"
add_polygon(sketch22, [(9, 25), (9, -25), (59, -25), (59, 25)])  # lines 0-3
sketch22.addGeometry(Part.Circle(App.Vector(34, 0, 0), App.Vector(0, 0, 1), 18), False)  # 4
sketch22.addConstraint([
    Sketcher.Constraint("Vertical", 0),
    Sketcher.Constraint("Horizontal", 1),
    Sketcher.Constraint("Vertical", 2),
    Sketcher.Constraint("Horizontal", 3),
    Sketcher.Constraint("PointOnObject", 4, 3, -1),
    Sketcher.Constraint("Equal", 3, 0),
    Sketcher.Constraint("Diameter", 4, 36.5),
    Sketcher.Constraint("DistanceX", 1, 1, 1, 2, 50.0),
    Sketcher.Constraint("DistanceY", 0, 2, -1, 1, 25.0),
    Sketcher.Constraint("DistanceX", 0, 2, 4, 3, 25.0),
    Sketcher.Constraint("DistanceX", -1, 1, 4, 3, 34.25),
])
sketch22.setExpression("Constraints[10]", "Params.sketch22_diameter")
sketch22.setExpression("Constraints[11]", "Params.sketch22_width")
pad5 = doc.addObject("PartDesign::Pad", "Pad004")
body.addObject(pad5)
pad5.Profile = sketch22
pad5.setExpression("Length", "Params.pad5_length")

# Sketch on XY plane
sketch23 = doc.addObject("Sketcher::SketchObject", "Sketch022")
body.addObject(sketch23)
sketch23.AttachmentSupport = (doc.XY_Plane, [""])
sketch23.MapMode = "FlatFace"
sketch23.AttachmentOffset = App.Placement(App.Vector(0, 0, -10), App.Rotation())
sketch23.addGeometry([
    Part.Circle(App.Vector(23.6, 10.6, 0), App.Vector(0, 0, 1), 1.5),
    Part.Circle(App.Vector(23.6, -10.6, 0), App.Vector(0, 0, 1), 1.5),
    Part.Circle(App.Vector(44.9, 10.6, 0), App.Vector(0, 0, 1), 1.5),
    Part.Circle(App.Vector(44.9, -10.6, 0), App.Vector(0, 0, 1), 1.5),
], False)
sketch23.addConstraint([
    Sketcher.Constraint("Equal", 0, 1),
    Sketcher.Constraint("Equal", 1, 2),
    Sketcher.Constraint("Equal", 2, 3),
    Sketcher.Constraint("Symmetric", 0, 3, 1, 3, -1),
    Sketcher.Constraint("Symmetric", 2, 3, 3, 3, -1),
    Sketcher.Constraint("Horizontal", 0, 3, 2, 3),
    Sketcher.Constraint("Diameter", 0, 3.0),
    Sketcher.Constraint("DistanceX", -1, 1, 0, 3, 23.643398),
    Sketcher.Constraint("DistanceY", -1, 1, 0, 3, 10.606602),
    Sketcher.Constraint("DistanceX", -1, 1, 2, 3, 44.856602),
])
sketch23.setExpression("Constraints[6]", "Params.sketch23_diameter")
pocket18 = doc.addObject("PartDesign::Pocket", "Pocket017")
body.addObject(pocket18)
pocket18.Profile = sketch23
pocket18.setExpression("Length", "Params.pocket18_length")
pocket18.Reversed = True
doc.recompute()

fillet = doc.addObject("PartDesign::Fillet", "Fillet")
body.addObject(fillet)
fillet.Base = (pocket18, edges_at(pocket18, [
    (-37.25, 72, -15),
    (-37.25, -72, -15),
    (-37.25, 0, -30),
    (-37.25, 0, 0),
    (43.25, -72, -15),
    (36.5, -72, -30),
    (36.5, -25, -30),
    (36.5, 25, -30),
    (36.5, 72, -30),
    (-5, 72, 0),
    (27.25, 56, 0),
    (43.25, 40, 0),
    (59.25, 25, 11.5),
    (9.25, 25, 11.5),
    (9.25, -25, 11.5),
    (34.25, 25, 23),
    (9.25, 0, 23),
    (34.25, -25, 23),
    (59.25, 0, 23),
    (59.25, -25, 11.5),
    (43.25, -40, 0),
    (27.25, -56, 0),
    (27.25, -72, -7.5),
    (59.25, -40, -7.5),
    (27.25, 72, -7.5),
    (59.25, 40, -7.5),
    (59.25, 72, -22.5),
    (59.25, 48.5, -30),
    (59.25, 25, -20),
    (59.25, -48.5, -30),
    (59.25, -25, -20),
    (59.25, -72, -22.5),
    (-5, -72, 0),
    (59.25, -56, -15),
    (59.25, 56, -15),
    (59.25, 32.5, 0),
    (59.25, -32.5, 0),
    (43.25, 72, -15),
]))
fillet.setExpression("Radius", "Params.fillet_radius")

doc.recompute()
